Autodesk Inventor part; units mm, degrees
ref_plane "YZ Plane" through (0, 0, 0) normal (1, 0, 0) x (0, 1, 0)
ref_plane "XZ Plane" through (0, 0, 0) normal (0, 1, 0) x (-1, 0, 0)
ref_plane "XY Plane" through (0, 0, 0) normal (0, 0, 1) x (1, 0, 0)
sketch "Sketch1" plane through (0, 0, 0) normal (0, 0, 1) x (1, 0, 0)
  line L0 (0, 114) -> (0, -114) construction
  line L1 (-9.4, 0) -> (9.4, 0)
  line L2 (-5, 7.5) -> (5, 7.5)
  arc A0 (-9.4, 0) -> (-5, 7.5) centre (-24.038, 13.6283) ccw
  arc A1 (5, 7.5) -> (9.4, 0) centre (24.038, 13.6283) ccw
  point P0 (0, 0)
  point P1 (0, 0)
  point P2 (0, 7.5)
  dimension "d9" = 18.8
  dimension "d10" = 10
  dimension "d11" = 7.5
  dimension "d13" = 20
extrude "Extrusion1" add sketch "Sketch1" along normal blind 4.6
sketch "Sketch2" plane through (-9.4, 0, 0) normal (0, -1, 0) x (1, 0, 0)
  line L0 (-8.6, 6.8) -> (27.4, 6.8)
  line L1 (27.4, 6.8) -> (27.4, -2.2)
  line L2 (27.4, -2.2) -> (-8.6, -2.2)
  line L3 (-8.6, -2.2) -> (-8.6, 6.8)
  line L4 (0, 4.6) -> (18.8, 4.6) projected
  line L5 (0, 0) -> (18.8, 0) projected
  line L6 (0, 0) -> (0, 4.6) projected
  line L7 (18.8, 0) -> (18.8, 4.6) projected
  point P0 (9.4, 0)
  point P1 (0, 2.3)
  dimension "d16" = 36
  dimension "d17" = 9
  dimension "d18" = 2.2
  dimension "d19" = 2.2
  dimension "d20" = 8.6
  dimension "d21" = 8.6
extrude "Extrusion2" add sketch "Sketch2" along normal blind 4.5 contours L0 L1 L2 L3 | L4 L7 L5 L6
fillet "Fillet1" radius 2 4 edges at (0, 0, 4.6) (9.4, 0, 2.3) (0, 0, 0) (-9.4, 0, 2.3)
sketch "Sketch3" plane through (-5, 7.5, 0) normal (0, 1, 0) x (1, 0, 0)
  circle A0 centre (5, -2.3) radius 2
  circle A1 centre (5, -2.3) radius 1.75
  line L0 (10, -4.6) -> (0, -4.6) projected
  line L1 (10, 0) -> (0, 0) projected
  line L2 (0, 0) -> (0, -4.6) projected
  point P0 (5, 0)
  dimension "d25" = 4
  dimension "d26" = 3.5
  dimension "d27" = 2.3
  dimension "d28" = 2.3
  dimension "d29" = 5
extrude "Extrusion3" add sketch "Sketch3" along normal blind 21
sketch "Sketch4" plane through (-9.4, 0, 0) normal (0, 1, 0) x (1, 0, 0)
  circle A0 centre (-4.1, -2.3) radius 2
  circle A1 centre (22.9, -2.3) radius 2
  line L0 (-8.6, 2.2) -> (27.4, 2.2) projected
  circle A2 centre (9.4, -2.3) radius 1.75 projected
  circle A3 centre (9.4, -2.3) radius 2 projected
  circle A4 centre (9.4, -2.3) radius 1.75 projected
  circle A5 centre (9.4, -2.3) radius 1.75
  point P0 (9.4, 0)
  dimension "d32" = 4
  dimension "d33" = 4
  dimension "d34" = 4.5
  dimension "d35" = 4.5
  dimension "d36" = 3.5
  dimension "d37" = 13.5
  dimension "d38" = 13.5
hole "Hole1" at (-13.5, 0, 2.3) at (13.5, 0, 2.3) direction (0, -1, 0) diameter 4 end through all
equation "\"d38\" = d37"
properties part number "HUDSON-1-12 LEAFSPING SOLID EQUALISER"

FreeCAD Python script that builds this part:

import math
import FreeCAD as App
import Part
import Sketcher
from FreeCAD import Vector


def edges_at(feature, points):
    """Names of the edges that pass closest to the given points."""
    edges = feature.Shape.Edges
    near = lambda p: min(range(len(edges)), key=lambda i: edges[i].distToShape(Part.Vertex(*p))[0])
    return sorted({f"Edge{near(p) + 1}" for p in points})


def add_polygon(sketch, points):
    """Adds a closed chain of lines whose ends are joined by coincident constraints."""
    first, n = sketch.GeometryCount, len(points)
    for a, b in zip(points, points[1:] + points[:1]):
        sketch.addGeometry(Part.LineSegment(App.Vector(*a, 0), App.Vector(*b, 0)), False)
    for i in range(n):
        sketch.addConstraint(Sketcher.Constraint("Coincident", first + i, 2, first + (i + 1) % n, 1))

doc = App.newDocument("Part")
body = doc.addObject("PartDesign::Body", "Body")

# Sketch on XY plane
sketch1 = body.newObject("Sketcher::SketchObject", "Sketch")
sketch1.AttachmentSupport = (doc.getObject("XY_Plane"), [""])
sketch1.MapMode = "FlatFace"
sketch1.addGeometry(Part.ArcOfCircle(Part.Circle(Vector(-24, 14, 0), Vector(0, 0, 1), 20), math.radians(-43), math.radians(-18)), False)
sketch1.addGeometry(Part.LineSegment(Vector(-9, 0, 0), Vector(9, 0, 0)), False)
sketch1.addGeometry(Part.ArcOfCircle(Part.Circle(Vector(24, 14, 0), Vector(0, 0, 1), 20), math.radians(-162), math.radians(-137)), False)
sketch1.addGeometry(Part.LineSegment(Vector(5, 8, 0), Vector(-5, 8, 0)), False)
sketch1.addConstraint(Sketcher.Constraint("Coincident", 0, 1, 1, 1))
sketch1.addConstraint(Sketcher.Constraint("Coincident", 1, 2, 2, 2))
sketch1.addConstraint(Sketcher.Constraint("Coincident", 2, 1, 3, 1))
sketch1.addConstraint(Sketcher.Constraint("Coincident", 3, 2, 0, 2))
sketch1.addConstraint(Sketcher.Constraint("Horizontal", 1))
sketch1.addConstraint(Sketcher.Constraint("Horizontal", 3))
sketch1.addConstraint(Sketcher.Constraint("Equal", 0, 2))
sketch1.addConstraint(Sketcher.Constraint("Symmetric", 0, 1, 1, 2, -1, 1))
sketch1.addConstraint(Sketcher.Constraint("Horizontal", 0, 3, 2, 3))
sketch1.addConstraint(Sketcher.Constraint("Radius", 0, 20.0))
sketch1.addConstraint(Sketcher.Constraint("DistanceX", 3, 2, 3, 1, 10.0))
sketch1.addConstraint(Sketcher.Constraint("DistanceX", 1, 1, 1, 2, 18.8))
sketch1.addConstraint(Sketcher.Constraint("DistanceY", -1, 1, 2, 1, 7.5))
pad1 = body.newObject("PartDesign::Pad", "Pad")
pad1.Profile = sketch1
pad1.Length = 4.6

# Sketch on XZ plane
sketch2 = body.newObject("Sketcher::SketchObject", "Sketch001")
sketch2.AttachmentSupport = (doc.getObject("XZ_Plane"), [""])
sketch2.MapMode = "FlatFace"
add_polygon(sketch2, [(18, 7), (-18, 7), (-18, -2), (18, -2)])  # lines 0-3
sketch2.addConstraint(Sketcher.Constraint("Horizontal", 0))
sketch2.addConstraint(Sketcher.Constraint("Vertical", 1))
sketch2.addConstraint(Sketcher.Constraint("Horizontal", 2))
sketch2.addConstraint(Sketcher.Constraint("Vertical", 3))
sketch2.addConstraint(Sketcher.Constraint("DistanceX", 0, 2, 0, 1, 36.0))
sketch2.addConstraint(Sketcher.Constraint("DistanceY", 1, 2, 1, 1, 9.0))
sketch2.addConstraint(Sketcher.Constraint("DistanceY", 1, 2, -1, 1, 2.2))
sketch2.addConstraint(Sketcher.Constraint("DistanceX", 0, 2, -1, 1, 18.0))
pad2 = body.newObject("PartDesign::Pad", "Pad001")
pad2.Profile = sketch2
pad2.Length = 4.5
doc.recompute()

fillet = body.newObject("PartDesign::Fillet", "Fillet")
fillet.Base = (pad2, edges_at(pad2, [
    (0, 0, 4.6),
    (9.4, 0, 2.3),
    (0, 0, 0),
    (-9.4, 0, 2.3),
]))
fillet.Radius = 2

# Sketch on XZ plane
sketch3 = body.newObject("Sketcher::SketchObject", "Sketch002")
sketch3.AttachmentSupport = (doc.getObject("XZ_Plane"), [""])
sketch3.MapMode = "FlatFace"
sketch3.AttachmentOffset = App.Placement(Vector(0, 0, -7.5), App.Rotation())
sketch3.addGeometry(Part.Circle(Vector(0, 2.3, 0), Vector(0, 0, 1), 2), False)
sketch3.addGeometry(Part.Circle(Vector(0, 2.3, 0), Vector(0, 0, 1), 1.8), False)
sketch3.addConstraint(Sketcher.Constraint("Coincident", 1, 3, 0, 3))
sketch3.addConstraint(Sketcher.Constraint("PointOnObject", 0, 3, -2))
sketch3.addConstraint(Sketcher.Constraint("Diameter", 0, 4.0))
sketch3.addConstraint(Sketcher.Constraint("Diameter", 1, 3.5))
sketch3.addConstraint(Sketcher.Constraint("DistanceY", -1, 1, 0, 3, 2.3))
pad3 = body.newObject("PartDesign::Pad", "Pad002")
pad3.Profile = sketch3
pad3.Length = 21
pad3.Reversed = True

# Sketch on XZ plane
sketch4 = body.newObject("Sketcher::SketchObject", "Sketch003")
sketch4.AttachmentSupport = (doc.getObject("XZ_Plane"), [""])
sketch4.MapMode = "FlatFace"
sketch4.addGeometry(Part.Circle(Vector(-13.5, 2.3, 0), Vector(0, 0, 1), 2), False)
sketch4.addGeometry(Part.Circle(Vector(13.5, 2.3, 0), Vector(0, 0, 1), 2), False)
sketch4.addConstraint(Sketcher.Constraint("Equal", 0, 1))
sketch4.addConstraint(Sketcher.Constraint("Symmetric", 0, 3, 1, 3, -2))
sketch4.addConstraint(Sketcher.Constraint("Diameter", 0, 4.0))
sketch4.addConstraint(Sketcher.Constraint("DistanceX", 0, 3, 1, 3, 27.0))
sketch4.addConstraint(Sketcher.Constraint("DistanceY", -1, 1, 0, 3, 2.3))
doc.recompute()
hole = body.newObject("PartDesign::Hole", "Hole")
hole.Profile = sketch4
hole.ThreadType = "None"
hole.Diameter = 4
hole.DepthType = "ThroughAll"
hole.Reversed = True

doc.recompute()
